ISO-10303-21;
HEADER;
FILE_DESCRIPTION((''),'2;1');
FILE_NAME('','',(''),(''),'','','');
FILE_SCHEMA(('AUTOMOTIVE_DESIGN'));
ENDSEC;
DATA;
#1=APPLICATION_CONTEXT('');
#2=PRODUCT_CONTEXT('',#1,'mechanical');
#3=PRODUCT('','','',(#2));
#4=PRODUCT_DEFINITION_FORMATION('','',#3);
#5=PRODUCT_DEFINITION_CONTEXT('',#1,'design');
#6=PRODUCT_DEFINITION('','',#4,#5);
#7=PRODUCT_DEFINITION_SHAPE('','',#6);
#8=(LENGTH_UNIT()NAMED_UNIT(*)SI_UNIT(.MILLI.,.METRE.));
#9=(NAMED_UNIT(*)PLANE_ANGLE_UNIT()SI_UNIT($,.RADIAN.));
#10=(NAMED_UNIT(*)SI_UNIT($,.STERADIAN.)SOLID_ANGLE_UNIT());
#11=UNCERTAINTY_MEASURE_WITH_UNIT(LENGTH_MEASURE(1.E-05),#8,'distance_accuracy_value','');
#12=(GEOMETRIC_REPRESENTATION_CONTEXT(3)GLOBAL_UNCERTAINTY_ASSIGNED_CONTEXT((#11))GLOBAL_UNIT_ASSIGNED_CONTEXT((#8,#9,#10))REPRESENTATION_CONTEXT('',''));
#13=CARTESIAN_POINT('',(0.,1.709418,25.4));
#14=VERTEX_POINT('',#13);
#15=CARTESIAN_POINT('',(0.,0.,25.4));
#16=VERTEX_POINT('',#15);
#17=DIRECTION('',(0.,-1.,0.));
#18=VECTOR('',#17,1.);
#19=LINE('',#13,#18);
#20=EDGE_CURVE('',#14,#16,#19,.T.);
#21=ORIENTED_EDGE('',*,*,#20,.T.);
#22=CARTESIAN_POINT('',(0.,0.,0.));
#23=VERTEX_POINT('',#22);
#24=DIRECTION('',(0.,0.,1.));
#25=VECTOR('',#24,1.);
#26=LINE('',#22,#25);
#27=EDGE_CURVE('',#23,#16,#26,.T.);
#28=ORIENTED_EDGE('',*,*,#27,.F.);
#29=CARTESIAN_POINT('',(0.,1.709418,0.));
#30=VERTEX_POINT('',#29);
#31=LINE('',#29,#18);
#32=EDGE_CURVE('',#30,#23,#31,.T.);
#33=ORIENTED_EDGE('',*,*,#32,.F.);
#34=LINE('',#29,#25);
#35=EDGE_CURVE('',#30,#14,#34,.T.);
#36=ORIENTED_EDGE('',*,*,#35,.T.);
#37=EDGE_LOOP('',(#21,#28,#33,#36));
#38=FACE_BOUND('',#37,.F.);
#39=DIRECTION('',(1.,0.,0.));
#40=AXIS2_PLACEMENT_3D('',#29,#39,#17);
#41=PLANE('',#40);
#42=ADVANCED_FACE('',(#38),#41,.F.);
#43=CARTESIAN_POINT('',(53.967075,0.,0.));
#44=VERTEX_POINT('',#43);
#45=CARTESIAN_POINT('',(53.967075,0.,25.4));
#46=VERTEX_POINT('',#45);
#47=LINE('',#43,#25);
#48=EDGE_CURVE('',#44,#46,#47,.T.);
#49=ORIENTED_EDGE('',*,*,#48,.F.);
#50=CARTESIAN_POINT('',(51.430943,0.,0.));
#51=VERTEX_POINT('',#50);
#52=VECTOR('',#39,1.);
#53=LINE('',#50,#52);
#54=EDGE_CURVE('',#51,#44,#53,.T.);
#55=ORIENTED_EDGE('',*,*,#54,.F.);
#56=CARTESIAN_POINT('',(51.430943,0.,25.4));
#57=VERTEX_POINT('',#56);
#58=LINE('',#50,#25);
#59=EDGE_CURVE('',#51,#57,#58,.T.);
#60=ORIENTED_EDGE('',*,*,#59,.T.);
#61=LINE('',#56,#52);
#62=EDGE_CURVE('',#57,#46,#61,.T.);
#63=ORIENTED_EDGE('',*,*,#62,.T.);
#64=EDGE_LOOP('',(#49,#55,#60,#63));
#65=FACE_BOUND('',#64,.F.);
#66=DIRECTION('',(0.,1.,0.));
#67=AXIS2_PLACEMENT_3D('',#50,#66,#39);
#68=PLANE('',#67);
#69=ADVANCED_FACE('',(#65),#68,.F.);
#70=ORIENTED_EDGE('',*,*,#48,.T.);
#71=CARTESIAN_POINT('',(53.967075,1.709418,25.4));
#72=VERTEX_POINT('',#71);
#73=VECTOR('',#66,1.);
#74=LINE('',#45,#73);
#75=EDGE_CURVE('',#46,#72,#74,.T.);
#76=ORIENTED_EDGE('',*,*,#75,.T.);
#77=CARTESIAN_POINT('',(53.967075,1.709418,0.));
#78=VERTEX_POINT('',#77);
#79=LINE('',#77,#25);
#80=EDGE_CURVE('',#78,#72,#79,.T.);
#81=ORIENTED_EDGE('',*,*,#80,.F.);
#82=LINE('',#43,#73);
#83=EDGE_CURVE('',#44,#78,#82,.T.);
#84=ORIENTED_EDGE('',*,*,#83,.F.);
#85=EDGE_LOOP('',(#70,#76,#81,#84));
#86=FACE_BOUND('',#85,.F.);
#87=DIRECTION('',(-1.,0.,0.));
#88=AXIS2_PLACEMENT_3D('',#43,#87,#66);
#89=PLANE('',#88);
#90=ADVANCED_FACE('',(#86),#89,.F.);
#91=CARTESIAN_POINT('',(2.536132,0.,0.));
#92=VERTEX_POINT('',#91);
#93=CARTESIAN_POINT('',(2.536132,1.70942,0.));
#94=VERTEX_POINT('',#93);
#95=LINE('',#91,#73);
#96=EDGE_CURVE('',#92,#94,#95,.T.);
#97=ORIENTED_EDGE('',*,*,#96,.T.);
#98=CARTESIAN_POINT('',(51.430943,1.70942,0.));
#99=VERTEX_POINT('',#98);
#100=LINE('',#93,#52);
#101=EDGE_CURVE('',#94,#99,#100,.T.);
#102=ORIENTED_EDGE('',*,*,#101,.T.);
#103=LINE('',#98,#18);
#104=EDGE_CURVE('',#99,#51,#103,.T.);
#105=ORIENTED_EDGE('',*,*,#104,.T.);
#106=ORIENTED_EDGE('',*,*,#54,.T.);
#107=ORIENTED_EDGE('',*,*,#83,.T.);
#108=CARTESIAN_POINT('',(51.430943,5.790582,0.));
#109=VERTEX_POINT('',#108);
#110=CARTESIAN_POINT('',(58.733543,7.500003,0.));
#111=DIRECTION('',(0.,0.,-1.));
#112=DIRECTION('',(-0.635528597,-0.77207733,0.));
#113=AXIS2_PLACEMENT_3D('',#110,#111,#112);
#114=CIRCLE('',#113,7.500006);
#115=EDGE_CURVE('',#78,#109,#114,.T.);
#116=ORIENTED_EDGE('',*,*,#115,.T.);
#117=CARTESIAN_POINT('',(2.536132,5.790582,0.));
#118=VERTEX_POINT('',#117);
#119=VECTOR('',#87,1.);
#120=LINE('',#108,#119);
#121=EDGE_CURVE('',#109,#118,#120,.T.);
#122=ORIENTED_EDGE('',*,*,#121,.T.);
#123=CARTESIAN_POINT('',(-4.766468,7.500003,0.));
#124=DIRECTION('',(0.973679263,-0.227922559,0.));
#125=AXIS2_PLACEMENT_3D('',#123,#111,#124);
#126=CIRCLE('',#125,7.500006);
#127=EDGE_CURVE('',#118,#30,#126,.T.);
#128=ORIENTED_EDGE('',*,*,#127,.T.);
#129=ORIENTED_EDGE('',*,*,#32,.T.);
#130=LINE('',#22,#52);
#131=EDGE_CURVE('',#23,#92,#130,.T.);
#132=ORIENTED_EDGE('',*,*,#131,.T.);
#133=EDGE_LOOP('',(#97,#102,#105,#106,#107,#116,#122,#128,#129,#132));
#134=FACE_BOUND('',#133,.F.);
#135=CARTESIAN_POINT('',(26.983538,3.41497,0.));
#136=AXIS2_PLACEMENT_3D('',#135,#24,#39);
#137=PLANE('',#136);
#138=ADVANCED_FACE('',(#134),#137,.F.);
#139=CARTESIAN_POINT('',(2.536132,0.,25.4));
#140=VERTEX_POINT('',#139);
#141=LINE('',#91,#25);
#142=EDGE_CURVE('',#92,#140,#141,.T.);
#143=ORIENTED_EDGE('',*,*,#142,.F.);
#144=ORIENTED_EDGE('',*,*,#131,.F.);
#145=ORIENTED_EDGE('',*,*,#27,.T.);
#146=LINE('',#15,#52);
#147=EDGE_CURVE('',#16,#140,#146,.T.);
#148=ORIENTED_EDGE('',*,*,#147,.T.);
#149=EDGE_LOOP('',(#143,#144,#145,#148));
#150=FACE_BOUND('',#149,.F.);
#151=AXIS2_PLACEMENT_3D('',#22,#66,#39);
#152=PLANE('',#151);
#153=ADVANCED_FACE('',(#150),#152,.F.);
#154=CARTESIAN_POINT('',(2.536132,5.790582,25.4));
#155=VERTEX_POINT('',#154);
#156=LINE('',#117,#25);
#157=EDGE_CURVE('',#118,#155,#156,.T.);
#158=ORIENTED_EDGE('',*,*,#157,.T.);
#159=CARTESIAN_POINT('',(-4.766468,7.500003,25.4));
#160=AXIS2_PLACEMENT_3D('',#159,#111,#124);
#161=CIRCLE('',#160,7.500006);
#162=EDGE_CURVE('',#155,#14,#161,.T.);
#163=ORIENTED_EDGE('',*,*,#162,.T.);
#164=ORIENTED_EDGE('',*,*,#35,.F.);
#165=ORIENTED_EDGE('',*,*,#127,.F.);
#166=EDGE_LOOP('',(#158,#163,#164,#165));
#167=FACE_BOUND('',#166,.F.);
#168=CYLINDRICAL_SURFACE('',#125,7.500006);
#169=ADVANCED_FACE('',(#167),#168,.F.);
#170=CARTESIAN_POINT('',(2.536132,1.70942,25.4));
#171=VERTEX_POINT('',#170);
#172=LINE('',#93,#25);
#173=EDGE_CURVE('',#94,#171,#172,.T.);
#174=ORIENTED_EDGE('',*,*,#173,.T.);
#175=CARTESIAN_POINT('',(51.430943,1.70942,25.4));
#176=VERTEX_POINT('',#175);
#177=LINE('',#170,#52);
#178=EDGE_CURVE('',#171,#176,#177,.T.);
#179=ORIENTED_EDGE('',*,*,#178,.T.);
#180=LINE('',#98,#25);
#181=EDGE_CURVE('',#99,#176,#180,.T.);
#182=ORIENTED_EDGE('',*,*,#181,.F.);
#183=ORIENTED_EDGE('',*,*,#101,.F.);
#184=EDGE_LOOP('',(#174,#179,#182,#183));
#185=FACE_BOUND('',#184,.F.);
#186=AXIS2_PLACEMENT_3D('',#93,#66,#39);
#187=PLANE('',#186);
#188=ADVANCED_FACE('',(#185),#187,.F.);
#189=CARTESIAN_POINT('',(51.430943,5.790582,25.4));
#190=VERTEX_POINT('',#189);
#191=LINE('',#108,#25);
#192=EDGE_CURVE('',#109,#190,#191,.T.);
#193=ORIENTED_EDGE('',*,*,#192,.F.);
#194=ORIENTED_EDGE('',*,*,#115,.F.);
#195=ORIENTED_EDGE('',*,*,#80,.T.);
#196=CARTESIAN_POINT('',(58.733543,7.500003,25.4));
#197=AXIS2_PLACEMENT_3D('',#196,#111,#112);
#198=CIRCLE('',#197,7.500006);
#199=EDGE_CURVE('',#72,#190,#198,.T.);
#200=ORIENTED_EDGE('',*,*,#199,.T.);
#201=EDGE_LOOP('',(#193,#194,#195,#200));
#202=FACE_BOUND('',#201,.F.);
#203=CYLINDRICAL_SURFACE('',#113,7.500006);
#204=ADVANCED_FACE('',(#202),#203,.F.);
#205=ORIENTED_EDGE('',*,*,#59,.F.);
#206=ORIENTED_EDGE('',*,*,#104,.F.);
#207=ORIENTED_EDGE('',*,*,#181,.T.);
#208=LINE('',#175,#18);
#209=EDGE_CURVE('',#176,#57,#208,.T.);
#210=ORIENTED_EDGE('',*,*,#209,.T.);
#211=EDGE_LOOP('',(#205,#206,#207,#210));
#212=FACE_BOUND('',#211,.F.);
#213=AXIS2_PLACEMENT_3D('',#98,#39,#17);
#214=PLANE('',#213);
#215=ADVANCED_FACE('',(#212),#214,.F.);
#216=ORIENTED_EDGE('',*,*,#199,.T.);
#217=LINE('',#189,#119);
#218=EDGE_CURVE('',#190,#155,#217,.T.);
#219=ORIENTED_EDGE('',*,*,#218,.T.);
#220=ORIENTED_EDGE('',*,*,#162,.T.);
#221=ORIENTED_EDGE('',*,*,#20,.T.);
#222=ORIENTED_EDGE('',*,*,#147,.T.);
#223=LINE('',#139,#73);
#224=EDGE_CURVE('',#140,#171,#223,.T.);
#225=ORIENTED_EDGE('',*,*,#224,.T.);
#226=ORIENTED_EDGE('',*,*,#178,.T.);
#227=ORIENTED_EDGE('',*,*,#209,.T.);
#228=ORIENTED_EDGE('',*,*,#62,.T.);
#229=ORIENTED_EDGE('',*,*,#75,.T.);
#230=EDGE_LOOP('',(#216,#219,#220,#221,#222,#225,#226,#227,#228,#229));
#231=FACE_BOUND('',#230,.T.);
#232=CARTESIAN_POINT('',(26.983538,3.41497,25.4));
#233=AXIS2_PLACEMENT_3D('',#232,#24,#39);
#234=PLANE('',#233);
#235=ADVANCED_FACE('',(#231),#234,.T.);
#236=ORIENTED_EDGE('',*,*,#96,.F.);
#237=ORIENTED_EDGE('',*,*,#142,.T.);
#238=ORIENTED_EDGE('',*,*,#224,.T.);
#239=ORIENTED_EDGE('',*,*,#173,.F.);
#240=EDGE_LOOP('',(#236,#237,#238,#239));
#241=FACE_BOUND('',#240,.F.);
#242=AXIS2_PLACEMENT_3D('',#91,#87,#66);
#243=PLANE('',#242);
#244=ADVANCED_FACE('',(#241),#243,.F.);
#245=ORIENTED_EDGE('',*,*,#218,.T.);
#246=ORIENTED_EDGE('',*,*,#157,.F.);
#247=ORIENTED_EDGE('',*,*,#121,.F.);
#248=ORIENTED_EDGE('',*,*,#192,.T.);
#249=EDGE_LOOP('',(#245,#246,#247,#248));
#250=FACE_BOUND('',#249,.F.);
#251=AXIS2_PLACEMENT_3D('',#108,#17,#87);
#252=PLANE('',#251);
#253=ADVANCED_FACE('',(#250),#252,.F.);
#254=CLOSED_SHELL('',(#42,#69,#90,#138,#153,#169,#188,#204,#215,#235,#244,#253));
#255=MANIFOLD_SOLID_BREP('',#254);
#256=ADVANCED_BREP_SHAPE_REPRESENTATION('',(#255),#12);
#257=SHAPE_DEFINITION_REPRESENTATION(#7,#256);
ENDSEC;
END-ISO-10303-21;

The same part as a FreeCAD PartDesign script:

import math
import FreeCAD as App
import Part
import Sketcher

V = App.Vector
Q = App.Units.Quantity

doc = App.newDocument("Part")
body = doc.addObject("PartDesign::Body", "Body")

# Sketch on XY plane
sketch1 = body.newObject("Sketcher::SketchObject", "Sketch")
sketch1.AttachmentSupport = (doc.getObject("XY_Plane"), [""])
sketch1.MapMode = "FlatFace"
sketch1.addGeometry([
    Part.LineSegment(V(0, 1.709418, 0), V(0, 0, 0)),  # 0
    Part.LineSegment(V(0, 0, 0), V(2.536132, 0, 0)),  # 1
    Part.LineSegment(V(2.536132, 0, 0), V(2.536132, 1.70942, 0)),  # 2
    Part.LineSegment(V(2.536132, 1.70942, 0), V(51.430943, 1.70942, 0)),  # 3
    Part.LineSegment(V(51.430943, 1.70942, 0), V(51.430943, 0, 0)),  # 4
    Part.LineSegment(V(51.430943, 0, 0), V(53.967075, 0, 0)),  # 5
    Part.LineSegment(V(53.967075, 0, 0), V(53.967075, 1.709418, 0)),  # 6
    Part.ArcOfCircle(Part.Circle(V(58.733543, 7.500003, 0), V(0, 0, 1), 7.500006), math.radians(-166.825205), math.radians(-129.459201)),  # 7
    Part.LineSegment(V(51.430943, 5.790582, 0), V(2.536132, 5.790582, 0)),  # 8
    Part.ArcOfCircle(Part.Circle(V(-4.766468, 7.500003, 0), V(0, 0, 1), 7.500006), math.radians(-50.540799), math.radians(-13.174795)),  # 9
], False)
sketch1.addConstraint([
    Sketcher.Constraint("Coincident", 0, 2, 1, 1),
    Sketcher.Constraint("Coincident", 1, 2, 2, 1),
    Sketcher.Constraint("Coincident", 2, 2, 3, 1),
    Sketcher.Constraint("Coincident", 3, 2, 4, 1),
    Sketcher.Constraint("Coincident", 4, 2, 5, 1),
    Sketcher.Constraint("Coincident", 5, 2, 6, 1),
    Sketcher.Constraint("Coincident", 6, 2, 7, 2),
    Sketcher.Constraint("Coincident", 7, 1, 8, 1),
    Sketcher.Constraint("Coincident", 8, 2, 9, 2),
    Sketcher.Constraint("Coincident", 9, 1, 0, 1),
    Sketcher.Constraint("Vertical", 0),
    Sketcher.Constraint("Horizontal", 1),
    Sketcher.Constraint("Vertical", 2),
    Sketcher.Constraint("Horizontal", 3),
    Sketcher.Constraint("Vertical", 4),
    Sketcher.Constraint("Horizontal", 5),
    Sketcher.Constraint("Vertical", 6),
    Sketcher.Constraint("Horizontal", 8),
    Sketcher.Constraint("Coincident", 0, 2, -1, 1),
    Sketcher.Constraint("Equal", 7, 9),
    Sketcher.Constraint("PointOnObject", 4, 2, -1),
    Sketcher.Constraint("Horizontal", 7, 3, 9, 3),
    Sketcher.Constraint("Horizontal", 3, 2, 6, 2),
    Sketcher.Constraint("Horizontal", 6, 2, 9, 1),
    Sketcher.Constraint("Vertical", 4, 2, 7, 1),
    Sketcher.Constraint("Vertical", 2, 2, 8, 2),
    Sketcher.Constraint("DistanceY", 0, 2, 0, 1, Q("0.0672999 in")),
    Sketcher.Constraint("Radius", 7, Q("7.500006 mm")),
    Sketcher.Constraint("DistanceY", 7, 1, 7, 3, Q("0.0673 in")),
    Sketcher.Constraint("DistanceX", 1, 1, 1, 2, Q("2.536132 mm")),
    Sketcher.Constraint("DistanceX", 3, 1, 3, 2, Q("48.894811 mm")),
])
pad1 = body.newObject("PartDesign::Pad", "Pad")
pad1.Profile = sketch1
pad1.Length = Q("1 in")

doc.recompute()
